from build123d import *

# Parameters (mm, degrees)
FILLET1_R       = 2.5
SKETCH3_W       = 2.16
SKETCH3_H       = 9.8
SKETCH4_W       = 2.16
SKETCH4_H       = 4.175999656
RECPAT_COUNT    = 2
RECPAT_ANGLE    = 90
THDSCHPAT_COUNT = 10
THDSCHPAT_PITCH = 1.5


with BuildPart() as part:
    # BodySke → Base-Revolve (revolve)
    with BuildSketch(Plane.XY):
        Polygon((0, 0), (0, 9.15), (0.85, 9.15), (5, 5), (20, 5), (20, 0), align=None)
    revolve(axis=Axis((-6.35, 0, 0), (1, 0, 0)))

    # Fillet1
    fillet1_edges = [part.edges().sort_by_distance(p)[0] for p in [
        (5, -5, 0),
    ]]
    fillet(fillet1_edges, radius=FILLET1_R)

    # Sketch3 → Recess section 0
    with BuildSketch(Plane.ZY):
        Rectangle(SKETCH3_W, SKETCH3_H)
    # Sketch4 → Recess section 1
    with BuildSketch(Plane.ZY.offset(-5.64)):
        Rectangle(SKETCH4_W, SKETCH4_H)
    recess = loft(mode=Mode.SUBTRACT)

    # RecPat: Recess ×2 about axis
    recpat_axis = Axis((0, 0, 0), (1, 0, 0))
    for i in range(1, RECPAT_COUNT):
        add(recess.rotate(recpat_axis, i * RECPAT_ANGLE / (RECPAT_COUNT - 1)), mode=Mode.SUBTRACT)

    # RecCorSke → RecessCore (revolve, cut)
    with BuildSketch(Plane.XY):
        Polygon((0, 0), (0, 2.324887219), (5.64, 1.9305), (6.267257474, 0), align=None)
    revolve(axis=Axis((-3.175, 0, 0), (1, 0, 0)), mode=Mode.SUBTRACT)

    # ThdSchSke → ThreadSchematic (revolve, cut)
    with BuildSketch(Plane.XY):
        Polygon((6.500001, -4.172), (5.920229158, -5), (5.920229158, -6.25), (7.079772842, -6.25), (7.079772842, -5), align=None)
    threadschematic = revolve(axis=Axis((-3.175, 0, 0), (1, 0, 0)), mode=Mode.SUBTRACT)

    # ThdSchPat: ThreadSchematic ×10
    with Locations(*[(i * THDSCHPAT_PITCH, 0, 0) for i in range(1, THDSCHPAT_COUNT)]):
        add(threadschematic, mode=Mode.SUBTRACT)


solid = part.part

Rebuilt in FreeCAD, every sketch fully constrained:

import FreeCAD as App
import Part
import Sketcher
Q = App.Units.Quantity


def edges_at(feature, points):
    """Names of the edges that pass closest to the given points."""
    edges = feature.Shape.Edges
    near = lambda p: min(range(len(edges)), key=lambda i: edges[i].distToShape(Part.Vertex(*p))[0])
    return sorted({f"Edge{near(p) + 1}" for p in points})

doc = App.newDocument("Part")
params = doc.addObject("Spreadsheet::Sheet", "Params")
for row, (alias, value) in enumerate([
    ("sketch1_width", "20 mm"),
    ("sketch1_width2", "15 mm"),
    ("sketch1_height", "5 mm"),
    ("sketch1_width3", "0.85 mm"),
    ("revolution_angle", "360 deg"),
    ("fillet_radius", "2.5 mm"),
    ("sketch2_width", "9.8 mm"),
    ("sketch2_height", "2.16 mm"),
    ("sketch3_height", "2.16 mm"),
    ("groove_angle", "360 deg"),
    ("sketch5_height", "1.25 mm"),
    ("groove2_angle", "360 deg"),
    ("linearpattern_pitch", "1.5 mm"),
], start=1):
    params.set(f"A{row}", alias)
    params.set(f"B{row}", "=" + value)
    params.setAlias(f"B{row}", alias)

body = doc.addObject("PartDesign::Body", "Body")

sketch1 = body.newObject("Sketcher::SketchObject", "Sketch")
sketch1.AttachmentSupport = (doc.getObject("XY_Plane"), [""])
sketch1.MapMode = "FlatFace"
sketch1.addGeometry([
    Part.LineSegment(App.Vector(0, 9.15, 0), App.Vector(0, 0, 0)),
    Part.LineSegment(App.Vector(0, 0, 0), App.Vector(20, 0, 0)),
    Part.LineSegment(App.Vector(20, 0, 0), App.Vector(20, 5, 0)),
    Part.LineSegment(App.Vector(20, 5, 0), App.Vector(5, 5, 0)),
    Part.LineSegment(App.Vector(5, 5, 0), App.Vector(0.85, 9.15, 0)),
    Part.LineSegment(App.Vector(0.85, 9.15, 0), App.Vector(0, 9.15, 0)),
], False)
sketch1.addConstraint([
    Sketcher.Constraint("Coincident", 0, 2, 1, 1),
    Sketcher.Constraint("Coincident", 1, 2, 2, 1),
    Sketcher.Constraint("Coincident", 2, 2, 3, 1),
    Sketcher.Constraint("Coincident", 3, 2, 4, 1),
    Sketcher.Constraint("Coincident", 4, 2, 5, 1),
    Sketcher.Constraint("Coincident", 5, 2, 0, 1),
    Sketcher.Constraint("Vertical", 0),
    Sketcher.Constraint("Horizontal", 1),
    Sketcher.Constraint("Vertical", 2),
    Sketcher.Constraint("Horizontal", 3),
    Sketcher.Constraint("Horizontal", 5),
    Sketcher.Constraint("Coincident", 0, 2, -1, 1),
    Sketcher.Constraint("DistanceX", 1, 1, 1, 2, Q("20 mm")),
    Sketcher.Constraint("DistanceX", 3, 2, 3, 1, Q("15 mm")),
    Sketcher.Constraint("DistanceY", 2, 1, 2, 2, Q("5 mm")),
    Sketcher.Constraint("Angle", 4, Q("135 deg")),
    Sketcher.Constraint("DistanceX", 5, 2, 5, 1, Q("0.85 mm")),
])
sketch1.setExpression("Constraints[12]", "Params.sketch1_width")
sketch1.setExpression("Constraints[13]", "Params.sketch1_width2")
sketch1.setExpression("Constraints[14]", "Params.sketch1_height")
sketch1.setExpression("Constraints[16]", "Params.sketch1_width3")
revolution = body.newObject("PartDesign::Revolution", "Revolution")
revolution.Profile = sketch1
revolution.ReferenceAxis = (sketch1, ["H_Axis"])
revolution.setExpression("Angle", "Params.revolution_angle")
doc.recompute()

fillet = body.newObject("PartDesign::Fillet", "Fillet")
fillet.Base = (revolution, edges_at(revolution, [(5, -5, 0)]))
fillet.setExpression("Radius", "Params.fillet_radius")

sketch2 = body.newObject("Sketcher::SketchObject", "Sketch001")
sketch2.AttachmentSupport = (doc.getObject("YZ_Plane"), [""])
sketch2.MapMode = "FlatFace"
sketch2.addGeometry([
    Part.LineSegment(App.Vector(4.9, -1.08, 0), App.Vector(-4.9, -1.08, 0)),
    Part.LineSegment(App.Vector(-4.9, -1.08, 0), App.Vector(-4.9, 1.08, 0)),
    Part.LineSegment(App.Vector(-4.9, 1.08, 0), App.Vector(4.9, 1.08, 0)),
    Part.LineSegment(App.Vector(4.9, 1.08, 0), App.Vector(4.9, -1.08, 0)),
], False)
sketch2.addConstraint([
    Sketcher.Constraint("Coincident", 0, 2, 1, 1),
    Sketcher.Constraint("Coincident", 1, 2, 2, 1),
    Sketcher.Constraint("Coincident", 2, 2, 3, 1),
    Sketcher.Constraint("Coincident", 3, 2, 0, 1),
    Sketcher.Constraint("Horizontal", 0),
    Sketcher.Constraint("Vertical", 1),
    Sketcher.Constraint("Horizontal", 2),
    Sketcher.Constraint("Vertical", 3),
    Sketcher.Constraint("Symmetric", 0, 2, 2, 2, -1, 1),
    Sketcher.Constraint("DistanceX", 0, 2, 0, 1, Q("9.8 mm")),
    Sketcher.Constraint("DistanceY", 1, 1, 1, 2, Q("2.16 mm")),
])
sketch2.setExpression("Constraints[9]", "Params.sketch2_width")
sketch2.setExpression("Constraints[10]", "Params.sketch2_height")

sketch3 = body.newObject("Sketcher::SketchObject", "Sketch002")
sketch3.AttachmentSupport = (doc.getObject("YZ_Plane"), [""])
sketch3.MapMode = "FlatFace"
sketch3.AttachmentOffset = App.Placement(App.Vector(0, 0, 5.64), App.Rotation())
sketch3.addGeometry([
    Part.LineSegment(App.Vector(2.088, -1.08, 0), App.Vector(-2.088, -1.08, 0)),
    Part.LineSegment(App.Vector(-2.088, -1.08, 0), App.Vector(-2.088, 1.08, 0)),
    Part.LineSegment(App.Vector(-2.088, 1.08, 0), App.Vector(2.088, 1.08, 0)),
    Part.LineSegment(App.Vector(2.088, 1.08, 0), App.Vector(2.088, -1.08, 0)),
], False)
sketch3.addConstraint([
    Sketcher.Constraint("Coincident", 0, 2, 1, 1),
    Sketcher.Constraint("Coincident", 1, 2, 2, 1),
    Sketcher.Constraint("Coincident", 2, 2, 3, 1),
    Sketcher.Constraint("Coincident", 3, 2, 0, 1),
    Sketcher.Constraint("Horizontal", 0),
    Sketcher.Constraint("Vertical", 1),
    Sketcher.Constraint("Horizontal", 2),
    Sketcher.Constraint("Vertical", 3),
    Sketcher.Constraint("Symmetric", 0, 2, 2, 2, -1, 1),
    Sketcher.Constraint("DistanceY", 1, 1, 1, 2, Q("2.16 mm")),
    Sketcher.Constraint("DistanceX", 0, 2, 0, 1, Q("4.176 mm")),
])
sketch3.setExpression("Constraints[9]", "Params.sketch3_height")

subtractiveloft = body.newObject("PartDesign::SubtractiveLoft", "SubtractiveLoft")
subtractiveloft.Profile = sketch2
subtractiveloft.Sections = [sketch3]
doc.recompute()

polarpattern = body.newObject("PartDesign::PolarPattern", "PolarPattern")
polarpattern.Originals = [subtractiveloft]
polarpattern.Axis = (doc.getObject("X_Axis"), [""])
polarpattern.Angle = 90
polarpattern.Occurrences = 2
body.Tip = polarpattern

sketch4 = body.newObject("Sketcher::SketchObject", "Sketch003")
sketch4.AttachmentSupport = (doc.getObject("XY_Plane"), [""])
sketch4.MapMode = "FlatFace"
sketch4.addGeometry([
    Part.LineSegment(App.Vector(0, 2.324887, 0), App.Vector(0, 0, 0)),
    Part.LineSegment(App.Vector(0, 0, 0), App.Vector(6.267257, 0, 0)),
    Part.LineSegment(App.Vector(6.267257, 0, 0), App.Vector(5.64, 1.9305, 0)),
    Part.LineSegment(App.Vector(5.64, 1.9305, 0), App.Vector(0, 2.324887, 0)),
], False)
sketch4.addConstraint([
    Sketcher.Constraint("Coincident", 0, 2, 1, 1),
    Sketcher.Constraint("Coincident", 1, 2, 2, 1),
    Sketcher.Constraint("Coincident", 2, 2, 3, 1),
    Sketcher.Constraint("Coincident", 3, 2, 0, 1),
    Sketcher.Constraint("Vertical", 0),
    Sketcher.Constraint("Horizontal", 1),
    Sketcher.Constraint("Coincident", 0, 2, -1, 1),
    Sketcher.Constraint("Angle", 2, Q("108 deg")),
    Sketcher.Constraint("Angle", 3, Q("176 deg")),
    Sketcher.Constraint("DistanceX", -1, 1, 2, 2, Q("5.64 mm")),
    Sketcher.Constraint("DistanceY", -1, 1, 2, 2, Q("1.9305 mm")),
])
groove = body.newObject("PartDesign::Groove", "Groove")
groove.Profile = sketch4
groove.ReferenceAxis = (sketch4, ["H_Axis"])
groove.setExpression("Angle", "Params.groove_angle")

sketch5 = body.newObject("Sketcher::SketchObject", "Sketch004")
sketch5.AttachmentSupport = (doc.getObject("XY_Plane"), [""])
sketch5.MapMode = "FlatFace"
sketch5.addGeometry([
    Part.LineSegment(App.Vector(6.500001, -4.172, 0), App.Vector(5.920229, -5, 0)),
    Part.LineSegment(App.Vector(5.920229, -5, 0), App.Vector(5.920229, -6.25, 0)),
    Part.LineSegment(App.Vector(5.920229, -6.25, 0), App.Vector(7.079773, -6.25, 0)),
    Part.LineSegment(App.Vector(7.079773, -6.25, 0), App.Vector(7.079773, -5, 0)),
    Part.LineSegment(App.Vector(7.079773, -5, 0), App.Vector(6.500001, -4.172, 0)),
], False)
sketch5.addConstraint([
    Sketcher.Constraint("Coincident", 0, 2, 1, 1),
    Sketcher.Constraint("Coincident", 1, 2, 2, 1),
    Sketcher.Constraint("Coincident", 2, 2, 3, 1),
    Sketcher.Constraint("Coincident", 3, 2, 4, 1),
    Sketcher.Constraint("Coincident", 4, 2, 0, 1),
    Sketcher.Constraint("Vertical", 1),
    Sketcher.Constraint("Horizontal", 2),
    Sketcher.Constraint("Vertical", 3),
    Sketcher.Constraint("Horizontal", 0, 2, 3, 2),
    Sketcher.Constraint("Equal", 0, 4),
    Sketcher.Constraint("Angle", 0, Q("-125 deg")),
    Sketcher.Constraint("DistanceY", 0, 2, -1, 1, Q("5 mm")),
    Sketcher.Constraint("DistanceY", 1, 2, 1, 1, Q("1.25 mm")),
    Sketcher.Constraint("DistanceX", -1, 1, 4, 2, Q("6.500001 mm")),
    Sketcher.Constraint("DistanceY", 4, 2, -1, 1, Q("4.172 mm")),
])
sketch5.setExpression("Constraints[12]", "Params.sketch5_height")
groove2 = body.newObject("PartDesign::Groove", "Groove001")
groove2.Profile = sketch5
groove2.ReferenceAxis = (sketch5, ["H_Axis"])
groove2.setExpression("Angle", "Params.groove2_angle")
doc.recompute()

linearpattern = body.newObject("PartDesign::LinearPattern", "LinearPattern")
linearpattern.Originals = [groove2]
linearpattern.Direction = (doc.getObject("X_Axis"), [""])
linearpattern.Mode = "offset"
linearpattern.setExpression("Offset", "Params.linearpattern_pitch")
linearpattern.Occurrences = 10
body.Tip = linearpattern

doc.recompute()
